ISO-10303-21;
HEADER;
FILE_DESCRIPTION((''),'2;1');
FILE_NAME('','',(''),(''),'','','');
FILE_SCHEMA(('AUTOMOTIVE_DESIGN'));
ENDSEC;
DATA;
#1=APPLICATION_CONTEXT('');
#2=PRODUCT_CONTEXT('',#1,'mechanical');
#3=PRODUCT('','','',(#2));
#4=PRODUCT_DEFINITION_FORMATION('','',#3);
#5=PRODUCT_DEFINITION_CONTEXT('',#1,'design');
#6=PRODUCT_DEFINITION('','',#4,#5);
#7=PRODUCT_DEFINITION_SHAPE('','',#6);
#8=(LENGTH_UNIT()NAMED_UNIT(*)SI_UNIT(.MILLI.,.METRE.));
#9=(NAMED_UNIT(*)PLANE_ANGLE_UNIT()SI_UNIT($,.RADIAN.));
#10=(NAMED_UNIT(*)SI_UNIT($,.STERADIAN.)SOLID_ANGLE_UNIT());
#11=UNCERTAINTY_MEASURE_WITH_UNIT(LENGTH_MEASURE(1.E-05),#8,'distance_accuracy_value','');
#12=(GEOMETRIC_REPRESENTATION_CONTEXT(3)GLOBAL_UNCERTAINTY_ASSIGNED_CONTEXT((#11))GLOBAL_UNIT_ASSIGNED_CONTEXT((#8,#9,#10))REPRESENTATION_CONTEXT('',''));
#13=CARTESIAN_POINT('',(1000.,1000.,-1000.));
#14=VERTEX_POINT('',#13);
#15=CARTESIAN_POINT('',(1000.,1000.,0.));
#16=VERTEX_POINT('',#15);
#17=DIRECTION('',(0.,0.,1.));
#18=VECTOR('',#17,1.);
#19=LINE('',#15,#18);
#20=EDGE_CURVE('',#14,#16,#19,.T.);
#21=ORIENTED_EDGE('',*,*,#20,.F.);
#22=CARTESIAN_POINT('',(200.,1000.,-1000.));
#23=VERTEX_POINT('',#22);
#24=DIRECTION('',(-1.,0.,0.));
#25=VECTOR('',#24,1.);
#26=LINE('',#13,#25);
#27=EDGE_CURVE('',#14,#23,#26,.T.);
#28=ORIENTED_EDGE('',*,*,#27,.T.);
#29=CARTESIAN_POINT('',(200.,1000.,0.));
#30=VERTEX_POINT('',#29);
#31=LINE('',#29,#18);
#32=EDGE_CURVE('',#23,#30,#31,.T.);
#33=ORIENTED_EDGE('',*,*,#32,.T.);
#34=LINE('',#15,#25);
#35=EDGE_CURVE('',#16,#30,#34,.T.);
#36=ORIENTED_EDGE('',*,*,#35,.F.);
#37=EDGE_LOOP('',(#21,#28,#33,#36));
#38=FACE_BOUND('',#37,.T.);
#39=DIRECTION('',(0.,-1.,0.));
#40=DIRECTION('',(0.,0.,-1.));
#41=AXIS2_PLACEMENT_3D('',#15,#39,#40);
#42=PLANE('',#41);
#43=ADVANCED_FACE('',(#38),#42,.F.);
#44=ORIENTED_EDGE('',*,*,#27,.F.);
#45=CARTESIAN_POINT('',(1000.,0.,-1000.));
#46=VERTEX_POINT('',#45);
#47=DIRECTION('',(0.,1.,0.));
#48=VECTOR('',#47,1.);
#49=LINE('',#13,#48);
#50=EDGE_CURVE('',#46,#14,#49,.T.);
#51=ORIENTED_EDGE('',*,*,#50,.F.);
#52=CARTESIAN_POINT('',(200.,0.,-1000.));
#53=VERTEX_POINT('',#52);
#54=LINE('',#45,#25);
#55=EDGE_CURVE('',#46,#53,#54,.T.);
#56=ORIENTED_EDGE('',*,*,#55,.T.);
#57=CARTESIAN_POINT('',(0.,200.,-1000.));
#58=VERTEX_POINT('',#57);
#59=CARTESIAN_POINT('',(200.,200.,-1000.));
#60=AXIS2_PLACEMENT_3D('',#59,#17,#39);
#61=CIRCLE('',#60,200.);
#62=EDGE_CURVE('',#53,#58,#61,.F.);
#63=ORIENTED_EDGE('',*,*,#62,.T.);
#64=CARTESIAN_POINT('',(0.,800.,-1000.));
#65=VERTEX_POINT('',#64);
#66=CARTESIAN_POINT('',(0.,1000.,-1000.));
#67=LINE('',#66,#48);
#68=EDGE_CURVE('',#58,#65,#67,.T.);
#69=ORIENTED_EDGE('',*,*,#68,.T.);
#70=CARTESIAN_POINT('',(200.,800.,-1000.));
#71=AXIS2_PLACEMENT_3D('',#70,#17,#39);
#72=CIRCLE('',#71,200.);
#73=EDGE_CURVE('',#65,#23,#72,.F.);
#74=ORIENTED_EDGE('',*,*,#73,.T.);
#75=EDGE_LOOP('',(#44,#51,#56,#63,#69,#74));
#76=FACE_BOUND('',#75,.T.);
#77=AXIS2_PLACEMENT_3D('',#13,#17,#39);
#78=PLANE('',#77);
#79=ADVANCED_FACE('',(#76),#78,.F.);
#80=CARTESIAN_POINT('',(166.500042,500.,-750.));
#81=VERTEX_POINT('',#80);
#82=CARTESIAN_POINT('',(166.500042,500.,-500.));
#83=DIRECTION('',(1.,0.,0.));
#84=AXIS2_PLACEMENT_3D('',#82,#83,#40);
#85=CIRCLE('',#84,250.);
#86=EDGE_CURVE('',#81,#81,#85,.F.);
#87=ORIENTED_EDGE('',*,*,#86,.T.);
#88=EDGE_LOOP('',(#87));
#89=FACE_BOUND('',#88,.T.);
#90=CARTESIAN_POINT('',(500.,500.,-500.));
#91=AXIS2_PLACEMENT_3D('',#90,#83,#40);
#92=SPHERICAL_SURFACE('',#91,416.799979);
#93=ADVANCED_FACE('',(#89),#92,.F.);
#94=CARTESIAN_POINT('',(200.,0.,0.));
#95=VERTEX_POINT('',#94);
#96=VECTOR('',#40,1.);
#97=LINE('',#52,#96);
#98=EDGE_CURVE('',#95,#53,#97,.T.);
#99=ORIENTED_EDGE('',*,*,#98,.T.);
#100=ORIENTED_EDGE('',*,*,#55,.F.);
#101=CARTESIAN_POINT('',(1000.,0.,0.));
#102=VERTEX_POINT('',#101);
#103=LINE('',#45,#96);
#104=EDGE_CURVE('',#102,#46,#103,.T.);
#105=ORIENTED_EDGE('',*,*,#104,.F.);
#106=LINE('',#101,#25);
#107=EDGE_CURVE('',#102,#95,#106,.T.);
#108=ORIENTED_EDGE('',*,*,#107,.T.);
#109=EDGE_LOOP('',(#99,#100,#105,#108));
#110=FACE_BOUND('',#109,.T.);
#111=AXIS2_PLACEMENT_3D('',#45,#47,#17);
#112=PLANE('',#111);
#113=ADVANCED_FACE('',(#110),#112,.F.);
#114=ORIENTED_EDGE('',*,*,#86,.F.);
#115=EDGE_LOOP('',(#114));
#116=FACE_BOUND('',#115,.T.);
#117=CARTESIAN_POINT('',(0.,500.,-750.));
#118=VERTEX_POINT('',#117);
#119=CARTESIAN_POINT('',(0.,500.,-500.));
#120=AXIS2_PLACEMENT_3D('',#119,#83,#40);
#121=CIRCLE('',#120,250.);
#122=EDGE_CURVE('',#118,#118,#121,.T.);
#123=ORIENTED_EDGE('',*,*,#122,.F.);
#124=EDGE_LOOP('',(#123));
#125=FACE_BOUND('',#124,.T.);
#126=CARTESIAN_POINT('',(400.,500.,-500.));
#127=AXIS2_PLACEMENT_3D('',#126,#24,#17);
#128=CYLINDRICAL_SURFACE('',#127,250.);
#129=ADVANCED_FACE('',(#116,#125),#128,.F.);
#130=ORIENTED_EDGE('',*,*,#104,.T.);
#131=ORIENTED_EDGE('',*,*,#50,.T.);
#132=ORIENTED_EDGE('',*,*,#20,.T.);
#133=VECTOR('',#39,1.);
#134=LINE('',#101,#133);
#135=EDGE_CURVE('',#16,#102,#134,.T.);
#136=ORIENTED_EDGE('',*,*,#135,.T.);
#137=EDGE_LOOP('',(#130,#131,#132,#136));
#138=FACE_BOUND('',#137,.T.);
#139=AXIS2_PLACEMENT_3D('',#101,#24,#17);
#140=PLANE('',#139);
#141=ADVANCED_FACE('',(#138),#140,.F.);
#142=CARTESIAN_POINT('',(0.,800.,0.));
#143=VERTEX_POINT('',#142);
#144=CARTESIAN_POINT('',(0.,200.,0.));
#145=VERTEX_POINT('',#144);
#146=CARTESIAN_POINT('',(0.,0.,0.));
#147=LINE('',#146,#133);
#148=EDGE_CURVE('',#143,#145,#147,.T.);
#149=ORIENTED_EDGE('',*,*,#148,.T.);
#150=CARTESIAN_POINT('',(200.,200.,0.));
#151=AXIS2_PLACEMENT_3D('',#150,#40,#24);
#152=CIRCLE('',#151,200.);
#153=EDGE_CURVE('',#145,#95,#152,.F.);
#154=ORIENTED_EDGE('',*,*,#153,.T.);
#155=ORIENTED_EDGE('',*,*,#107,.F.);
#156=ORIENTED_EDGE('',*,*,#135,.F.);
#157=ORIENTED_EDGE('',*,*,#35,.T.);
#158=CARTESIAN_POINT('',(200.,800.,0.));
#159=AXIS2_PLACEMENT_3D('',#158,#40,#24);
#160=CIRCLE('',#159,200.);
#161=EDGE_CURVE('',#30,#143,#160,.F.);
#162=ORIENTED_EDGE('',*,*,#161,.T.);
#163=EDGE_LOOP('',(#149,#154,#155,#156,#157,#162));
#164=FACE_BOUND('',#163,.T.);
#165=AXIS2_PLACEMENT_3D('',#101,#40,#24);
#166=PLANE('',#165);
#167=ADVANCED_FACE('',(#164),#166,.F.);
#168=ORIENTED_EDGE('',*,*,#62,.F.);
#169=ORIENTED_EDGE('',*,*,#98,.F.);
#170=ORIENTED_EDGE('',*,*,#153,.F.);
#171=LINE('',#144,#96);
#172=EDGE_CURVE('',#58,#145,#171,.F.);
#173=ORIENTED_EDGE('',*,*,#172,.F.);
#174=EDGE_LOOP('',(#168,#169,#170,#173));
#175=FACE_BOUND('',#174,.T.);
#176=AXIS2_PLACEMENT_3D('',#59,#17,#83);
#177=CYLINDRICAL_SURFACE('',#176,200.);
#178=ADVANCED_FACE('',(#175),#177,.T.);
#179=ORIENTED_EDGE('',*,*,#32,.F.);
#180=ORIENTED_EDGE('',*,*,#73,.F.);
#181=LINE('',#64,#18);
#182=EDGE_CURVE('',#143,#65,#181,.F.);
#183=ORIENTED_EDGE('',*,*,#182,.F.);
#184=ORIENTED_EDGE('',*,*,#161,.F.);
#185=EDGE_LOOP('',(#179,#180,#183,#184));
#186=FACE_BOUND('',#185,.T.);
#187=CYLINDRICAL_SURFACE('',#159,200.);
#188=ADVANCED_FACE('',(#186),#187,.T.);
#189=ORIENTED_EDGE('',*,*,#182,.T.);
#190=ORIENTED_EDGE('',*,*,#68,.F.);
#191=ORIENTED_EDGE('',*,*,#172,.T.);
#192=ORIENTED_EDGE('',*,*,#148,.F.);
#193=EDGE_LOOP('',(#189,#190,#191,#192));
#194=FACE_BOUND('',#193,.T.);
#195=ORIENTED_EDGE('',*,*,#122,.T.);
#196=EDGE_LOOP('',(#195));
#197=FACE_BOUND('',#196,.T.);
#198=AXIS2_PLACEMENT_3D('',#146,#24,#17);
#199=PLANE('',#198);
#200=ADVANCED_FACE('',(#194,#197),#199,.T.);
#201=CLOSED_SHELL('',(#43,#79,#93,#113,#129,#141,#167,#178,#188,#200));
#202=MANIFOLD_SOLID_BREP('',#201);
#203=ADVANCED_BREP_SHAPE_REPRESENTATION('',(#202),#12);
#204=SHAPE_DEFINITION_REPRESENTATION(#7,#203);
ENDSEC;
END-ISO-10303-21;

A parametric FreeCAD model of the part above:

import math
import FreeCAD as App
import Part
import Sketcher

V = App.Vector
Q = App.Units.Quantity


def edges_at(feature, points):
    """Names of the edges that pass closest to the given points."""
    edges = feature.Shape.Edges
    near = lambda p: min(range(len(edges)), key=lambda i: edges[i].distToShape(Part.Vertex(*p))[0])
    return sorted({f"Edge{near(p) + 1}" for p in points})

doc = App.newDocument("Part")
body = doc.addObject("PartDesign::Body", "Body")

sketch1 = doc.addObject("Sketcher::SketchObject", "Sketch")
body.addObject(sketch1)
sketch1.AttachmentSupport = (doc.YZ_Plane, [""])
sketch1.MapMode = "FlatFace"
sketch1.addGeometry(Part.LineSegment(V(1000, 0, 0), V(0, 0, 0)), False)
sketch1.addGeometry(Part.LineSegment(V(0, 0, 0), V(0, -1000, 0)), False)
sketch1.addGeometry(Part.LineSegment(V(0, -1000, 0), V(1000, -1000, 0)), False)
sketch1.addGeometry(Part.LineSegment(V(1000, -1000, 0), V(1000, 0, 0)), False)
sketch1.addConstraint(Sketcher.Constraint("Coincident", 0, 2, 1, 1))
sketch1.addConstraint(Sketcher.Constraint("Coincident", 1, 2, 2, 1))
sketch1.addConstraint(Sketcher.Constraint("Coincident", 2, 2, 3, 1))
sketch1.addConstraint(Sketcher.Constraint("Coincident", 3, 2, 0, 1))
sketch1.addConstraint(Sketcher.Constraint("Horizontal", 0))
sketch1.addConstraint(Sketcher.Constraint("Vertical", 1))
sketch1.addConstraint(Sketcher.Constraint("Horizontal", 2))
sketch1.addConstraint(Sketcher.Constraint("Vertical", 3))
sketch1.addConstraint(Sketcher.Constraint("Coincident", 0, 2, -1, 1))
sketch1.addConstraint(Sketcher.Constraint("Equal", 2, 1))
sketch1.addConstraint(Sketcher.Constraint("DistanceX", 0, 2, 0, 1, Q("1000 mm")))
pad1 = doc.addObject("PartDesign::Pad", "Pad")
body.addObject(pad1)
pad1.Profile = sketch1
pad1.Length = 1000

sketch2 = doc.addObject("Sketcher::SketchObject", "Sketch001")
body.addObject(sketch2)
sketch2.AttachmentSupport = (doc.YZ_Plane, [""])
sketch2.MapMode = "FlatFace"
sketch2.AttachmentOffset = App.Placement(V(0, 0, 500), App.Rotation())
sketch2.addGeometry(Part.LineSegment(V(500, -83.200021, 0), V(500, -916.799979, 0)), False)
sketch2.addGeometry(Part.ArcOfCircle(Part.Circle(V(500, -500, 0), V(0, 0, 1), 416.799979), math.radians(-90), math.radians(90)), False)
sketch2.addGeometry(Part.LineSegment(V(500, -83.200021, 0), V(500, -916.799979, 0)), True)
sketch2.addConstraint(Sketcher.Constraint("Coincident", 0, 1, 1, 2))
sketch2.addConstraint(Sketcher.Constraint("Coincident", 1, 1, 0, 2))
sketch2.addConstraint(Sketcher.Constraint("Vertical", 0))
sketch2.addConstraint(Sketcher.Constraint("Vertical", 2))
sketch2.addConstraint(Sketcher.Constraint("Coincident", 2, 1, 0, 1))
sketch2.addConstraint(Sketcher.Constraint("Vertical", 1, 3, 0, 1))
sketch2.addConstraint(Sketcher.Constraint("Equal", 0, 2))
sketch2.addConstraint(Sketcher.Constraint("DistanceX", -1, 1, 1, 3, Q("500 mm")))
sketch2.addConstraint(Sketcher.Constraint("DistanceY", 1, 3, -1, 1, Q("500 mm")))
sketch2.addConstraint(Sketcher.Constraint("Radius", 1, Q("416.799979 mm")))
groove = doc.addObject("PartDesign::Groove", "Groove")
body.addObject(groove)
groove.Profile = sketch2
groove.ReferenceAxis = (sketch2, ["Axis0"])
groove.Angle = 360

sketch3 = doc.addObject("Sketcher::SketchObject", "Sketch002")
body.addObject(sketch3)
sketch3.AttachmentSupport = (doc.YZ_Plane, [""])
sketch3.MapMode = "FlatFace"
sketch3.addGeometry(Part.Circle(V(500, -500, 0), V(0, 0, 1), 250), False)
sketch3.addConstraint(Sketcher.Constraint("Diameter", 0, Q("500 mm")))
sketch3.addConstraint(Sketcher.Constraint("DistanceX", -1, 1, 0, 3, Q("500 mm")))
sketch3.addConstraint(Sketcher.Constraint("DistanceY", 0, 3, -1, 1, Q("500 mm")))
pocket1 = doc.addObject("PartDesign::Pocket", "Pocket")
body.addObject(pocket1)
pocket1.Profile = sketch3
pocket1.Length = 400
pocket1.Reversed = True
doc.recompute()

fillet = doc.addObject("PartDesign::Fillet", "Fillet")
body.addObject(fillet)
fillet.Base = (pocket1, edges_at(pocket1, [(0, 1000, -500), (0, 0, -500)]))
fillet.Radius = 200

doc.recompute()
